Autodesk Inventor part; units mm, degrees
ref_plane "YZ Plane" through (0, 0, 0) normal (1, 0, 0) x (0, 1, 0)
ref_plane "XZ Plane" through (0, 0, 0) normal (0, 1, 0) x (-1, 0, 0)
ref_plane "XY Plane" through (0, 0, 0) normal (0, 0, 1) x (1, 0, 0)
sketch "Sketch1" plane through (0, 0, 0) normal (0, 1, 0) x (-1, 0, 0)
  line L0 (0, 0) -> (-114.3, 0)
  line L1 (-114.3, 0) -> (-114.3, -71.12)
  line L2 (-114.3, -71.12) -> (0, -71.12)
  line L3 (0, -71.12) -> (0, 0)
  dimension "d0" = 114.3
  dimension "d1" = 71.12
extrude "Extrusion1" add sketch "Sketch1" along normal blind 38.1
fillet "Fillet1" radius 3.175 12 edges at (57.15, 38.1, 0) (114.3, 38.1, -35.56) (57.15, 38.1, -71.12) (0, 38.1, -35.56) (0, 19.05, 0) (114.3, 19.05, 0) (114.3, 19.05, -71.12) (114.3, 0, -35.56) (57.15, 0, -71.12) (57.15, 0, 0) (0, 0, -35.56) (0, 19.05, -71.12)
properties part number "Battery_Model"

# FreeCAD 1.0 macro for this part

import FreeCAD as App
import Part
import Sketcher

V = App.Vector
Q = App.Units.Quantity

doc = App.newDocument("Part")
body = doc.addObject("PartDesign::Body", "Body")

# Sketch on XZ plane
sketch1 = body.newObject("Sketcher::SketchObject", "Sketch")
sketch1.AttachmentSupport = (doc.getObject("XZ_Plane"), [""])
sketch1.MapMode = "FlatFace"
sketch1.addGeometry(Part.LineSegment(V(0, -71, 0), V(0, 0, 0)), False)
sketch1.addGeometry(Part.LineSegment(V(0, 0, 0), V(114, 0, 0)), False)
sketch1.addGeometry(Part.LineSegment(V(114, 0, 0), V(114, -71, 0)), False)
sketch1.addGeometry(Part.LineSegment(V(114, -71, 0), V(0, -71, 0)), False)
sketch1.addConstraint(Sketcher.Constraint("Coincident", 0, 2, 1, 1))
sketch1.addConstraint(Sketcher.Constraint("Coincident", 1, 2, 2, 1))
sketch1.addConstraint(Sketcher.Constraint("Coincident", 2, 2, 3, 1))
sketch1.addConstraint(Sketcher.Constraint("Coincident", 3, 2, 0, 1))
sketch1.addConstraint(Sketcher.Constraint("Vertical", 0))
sketch1.addConstraint(Sketcher.Constraint("Horizontal", 1))
sketch1.addConstraint(Sketcher.Constraint("Vertical", 2))
sketch1.addConstraint(Sketcher.Constraint("Horizontal", 3))
sketch1.addConstraint(Sketcher.Constraint("Coincident", 0, 2, -1, 1))
sketch1.addConstraint(Sketcher.Constraint("DistanceX", 1, 1, 1, 2, Q("4.5 in")))
sketch1.addConstraint(Sketcher.Constraint("DistanceY", 0, 1, 0, 2, Q("2.8 in")))
pad1 = body.newObject("PartDesign::Pad", "Pad")
pad1.Profile = sketch1
pad1.Length = Q("1.5 in")
pad1.Reversed = True
doc.recompute()

fillet = body.newObject("PartDesign::Fillet", "Fillet")
fillet.Base = (pad1, ["Edge1"])
fillet.UseAllEdges = True
fillet.Radius = Q("0.125 in")

doc.recompute()
